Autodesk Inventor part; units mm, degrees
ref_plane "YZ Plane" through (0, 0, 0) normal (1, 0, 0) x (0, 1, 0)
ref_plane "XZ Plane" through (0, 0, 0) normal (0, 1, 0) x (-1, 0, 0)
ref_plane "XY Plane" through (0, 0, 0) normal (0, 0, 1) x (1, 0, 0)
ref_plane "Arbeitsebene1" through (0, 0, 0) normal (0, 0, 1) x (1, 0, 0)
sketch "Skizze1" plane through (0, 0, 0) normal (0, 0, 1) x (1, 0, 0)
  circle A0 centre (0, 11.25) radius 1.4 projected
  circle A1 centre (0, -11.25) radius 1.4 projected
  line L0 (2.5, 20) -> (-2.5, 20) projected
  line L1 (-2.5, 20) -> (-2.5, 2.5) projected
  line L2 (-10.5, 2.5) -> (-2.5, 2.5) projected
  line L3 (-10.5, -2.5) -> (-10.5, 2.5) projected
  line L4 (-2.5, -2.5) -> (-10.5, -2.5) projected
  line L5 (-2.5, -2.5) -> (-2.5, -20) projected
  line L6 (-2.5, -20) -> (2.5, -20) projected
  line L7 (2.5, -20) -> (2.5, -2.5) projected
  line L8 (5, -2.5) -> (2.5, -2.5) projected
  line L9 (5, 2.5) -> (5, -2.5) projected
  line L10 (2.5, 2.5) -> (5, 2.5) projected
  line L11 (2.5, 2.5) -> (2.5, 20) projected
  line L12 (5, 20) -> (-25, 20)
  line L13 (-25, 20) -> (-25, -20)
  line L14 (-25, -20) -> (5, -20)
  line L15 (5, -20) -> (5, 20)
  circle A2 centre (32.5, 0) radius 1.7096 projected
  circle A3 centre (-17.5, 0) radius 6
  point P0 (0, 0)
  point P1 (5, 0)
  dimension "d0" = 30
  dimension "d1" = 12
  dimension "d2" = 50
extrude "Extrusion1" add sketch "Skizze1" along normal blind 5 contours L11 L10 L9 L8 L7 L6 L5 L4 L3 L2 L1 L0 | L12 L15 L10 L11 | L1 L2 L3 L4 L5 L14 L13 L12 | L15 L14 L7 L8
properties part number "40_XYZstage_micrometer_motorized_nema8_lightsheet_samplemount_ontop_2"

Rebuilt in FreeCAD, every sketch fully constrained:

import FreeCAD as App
import Part
import Sketcher


def add_polygon(sketch, points):
    """Adds a closed chain of lines whose ends are joined by coincident constraints."""
    first, n = sketch.GeometryCount, len(points)
    for a, b in zip(points, points[1:] + points[:1]):
        sketch.addGeometry(Part.LineSegment(App.Vector(*a, 0), App.Vector(*b, 0)), False)
    for i in range(n):
        sketch.addConstraint(Sketcher.Constraint("Coincident", first + i, 2, first + (i + 1) % n, 1))

doc = App.newDocument("Part")
body = doc.addObject("PartDesign::Body", "Body")

# Sketch on XY plane
sketch1 = body.newObject("Sketcher::SketchObject", "Sketch")
sketch1.AttachmentSupport = (doc.getObject("XY_Plane"), [""])
sketch1.MapMode = "FlatFace"
add_polygon(sketch1, [(5, 20), (-25, 20), (-25, -20), (5, -20)])  # lines 0-3
sketch1.addGeometry(Part.Circle(App.Vector(0, -11.2, 0), App.Vector(0, 0, 1), 1.4), False)  # 4
sketch1.addGeometry(Part.Circle(App.Vector(0, 11.2, 0), App.Vector(0, 0, 1), 1.4), False)  # 5
sketch1.addGeometry(Part.Circle(App.Vector(-17.5, 0, 0), App.Vector(0, 0, 1), 6), False)  # 6
sketch1.addConstraint(Sketcher.Constraint("Horizontal", 0))
sketch1.addConstraint(Sketcher.Constraint("Vertical", 1))
sketch1.addConstraint(Sketcher.Constraint("Horizontal", 2))
sketch1.addConstraint(Sketcher.Constraint("Vertical", 3))
sketch1.addConstraint(Sketcher.Constraint("Equal", 4, 5))
sketch1.addConstraint(Sketcher.Constraint("Symmetric", 4, 3, 5, 3, -1, 1))
sketch1.addConstraint(Sketcher.Constraint("PointOnObject", 4, 3, -2))
sketch1.addConstraint(Sketcher.Constraint("PointOnObject", 6, 3, -1))
sketch1.addConstraint(Sketcher.Constraint("Diameter", 6, 12.0))
sketch1.addConstraint(Sketcher.Constraint("DistanceX", 0, 2, 0, 1, 30.0))
sketch1.addConstraint(Sketcher.Constraint("Diameter", 4, 2.8))
sketch1.addConstraint(Sketcher.Constraint("DistanceY", 1, 2, 1, 1, 40.0))
sketch1.addConstraint(Sketcher.Constraint("DistanceX", 0, 2, -1, 1, 25.0))
sketch1.addConstraint(Sketcher.Constraint("DistanceY", -1, 1, 0, 2, 20.0))
sketch1.addConstraint(Sketcher.Constraint("DistanceX", 6, 3, -1, 1, 17.5))
sketch1.addConstraint(Sketcher.Constraint("DistanceY", 4, 3, 5, 3, 22.5))
pad1 = body.newObject("PartDesign::Pad", "Pad")
pad1.Profile = sketch1
pad1.Length = 5

doc.recompute()
